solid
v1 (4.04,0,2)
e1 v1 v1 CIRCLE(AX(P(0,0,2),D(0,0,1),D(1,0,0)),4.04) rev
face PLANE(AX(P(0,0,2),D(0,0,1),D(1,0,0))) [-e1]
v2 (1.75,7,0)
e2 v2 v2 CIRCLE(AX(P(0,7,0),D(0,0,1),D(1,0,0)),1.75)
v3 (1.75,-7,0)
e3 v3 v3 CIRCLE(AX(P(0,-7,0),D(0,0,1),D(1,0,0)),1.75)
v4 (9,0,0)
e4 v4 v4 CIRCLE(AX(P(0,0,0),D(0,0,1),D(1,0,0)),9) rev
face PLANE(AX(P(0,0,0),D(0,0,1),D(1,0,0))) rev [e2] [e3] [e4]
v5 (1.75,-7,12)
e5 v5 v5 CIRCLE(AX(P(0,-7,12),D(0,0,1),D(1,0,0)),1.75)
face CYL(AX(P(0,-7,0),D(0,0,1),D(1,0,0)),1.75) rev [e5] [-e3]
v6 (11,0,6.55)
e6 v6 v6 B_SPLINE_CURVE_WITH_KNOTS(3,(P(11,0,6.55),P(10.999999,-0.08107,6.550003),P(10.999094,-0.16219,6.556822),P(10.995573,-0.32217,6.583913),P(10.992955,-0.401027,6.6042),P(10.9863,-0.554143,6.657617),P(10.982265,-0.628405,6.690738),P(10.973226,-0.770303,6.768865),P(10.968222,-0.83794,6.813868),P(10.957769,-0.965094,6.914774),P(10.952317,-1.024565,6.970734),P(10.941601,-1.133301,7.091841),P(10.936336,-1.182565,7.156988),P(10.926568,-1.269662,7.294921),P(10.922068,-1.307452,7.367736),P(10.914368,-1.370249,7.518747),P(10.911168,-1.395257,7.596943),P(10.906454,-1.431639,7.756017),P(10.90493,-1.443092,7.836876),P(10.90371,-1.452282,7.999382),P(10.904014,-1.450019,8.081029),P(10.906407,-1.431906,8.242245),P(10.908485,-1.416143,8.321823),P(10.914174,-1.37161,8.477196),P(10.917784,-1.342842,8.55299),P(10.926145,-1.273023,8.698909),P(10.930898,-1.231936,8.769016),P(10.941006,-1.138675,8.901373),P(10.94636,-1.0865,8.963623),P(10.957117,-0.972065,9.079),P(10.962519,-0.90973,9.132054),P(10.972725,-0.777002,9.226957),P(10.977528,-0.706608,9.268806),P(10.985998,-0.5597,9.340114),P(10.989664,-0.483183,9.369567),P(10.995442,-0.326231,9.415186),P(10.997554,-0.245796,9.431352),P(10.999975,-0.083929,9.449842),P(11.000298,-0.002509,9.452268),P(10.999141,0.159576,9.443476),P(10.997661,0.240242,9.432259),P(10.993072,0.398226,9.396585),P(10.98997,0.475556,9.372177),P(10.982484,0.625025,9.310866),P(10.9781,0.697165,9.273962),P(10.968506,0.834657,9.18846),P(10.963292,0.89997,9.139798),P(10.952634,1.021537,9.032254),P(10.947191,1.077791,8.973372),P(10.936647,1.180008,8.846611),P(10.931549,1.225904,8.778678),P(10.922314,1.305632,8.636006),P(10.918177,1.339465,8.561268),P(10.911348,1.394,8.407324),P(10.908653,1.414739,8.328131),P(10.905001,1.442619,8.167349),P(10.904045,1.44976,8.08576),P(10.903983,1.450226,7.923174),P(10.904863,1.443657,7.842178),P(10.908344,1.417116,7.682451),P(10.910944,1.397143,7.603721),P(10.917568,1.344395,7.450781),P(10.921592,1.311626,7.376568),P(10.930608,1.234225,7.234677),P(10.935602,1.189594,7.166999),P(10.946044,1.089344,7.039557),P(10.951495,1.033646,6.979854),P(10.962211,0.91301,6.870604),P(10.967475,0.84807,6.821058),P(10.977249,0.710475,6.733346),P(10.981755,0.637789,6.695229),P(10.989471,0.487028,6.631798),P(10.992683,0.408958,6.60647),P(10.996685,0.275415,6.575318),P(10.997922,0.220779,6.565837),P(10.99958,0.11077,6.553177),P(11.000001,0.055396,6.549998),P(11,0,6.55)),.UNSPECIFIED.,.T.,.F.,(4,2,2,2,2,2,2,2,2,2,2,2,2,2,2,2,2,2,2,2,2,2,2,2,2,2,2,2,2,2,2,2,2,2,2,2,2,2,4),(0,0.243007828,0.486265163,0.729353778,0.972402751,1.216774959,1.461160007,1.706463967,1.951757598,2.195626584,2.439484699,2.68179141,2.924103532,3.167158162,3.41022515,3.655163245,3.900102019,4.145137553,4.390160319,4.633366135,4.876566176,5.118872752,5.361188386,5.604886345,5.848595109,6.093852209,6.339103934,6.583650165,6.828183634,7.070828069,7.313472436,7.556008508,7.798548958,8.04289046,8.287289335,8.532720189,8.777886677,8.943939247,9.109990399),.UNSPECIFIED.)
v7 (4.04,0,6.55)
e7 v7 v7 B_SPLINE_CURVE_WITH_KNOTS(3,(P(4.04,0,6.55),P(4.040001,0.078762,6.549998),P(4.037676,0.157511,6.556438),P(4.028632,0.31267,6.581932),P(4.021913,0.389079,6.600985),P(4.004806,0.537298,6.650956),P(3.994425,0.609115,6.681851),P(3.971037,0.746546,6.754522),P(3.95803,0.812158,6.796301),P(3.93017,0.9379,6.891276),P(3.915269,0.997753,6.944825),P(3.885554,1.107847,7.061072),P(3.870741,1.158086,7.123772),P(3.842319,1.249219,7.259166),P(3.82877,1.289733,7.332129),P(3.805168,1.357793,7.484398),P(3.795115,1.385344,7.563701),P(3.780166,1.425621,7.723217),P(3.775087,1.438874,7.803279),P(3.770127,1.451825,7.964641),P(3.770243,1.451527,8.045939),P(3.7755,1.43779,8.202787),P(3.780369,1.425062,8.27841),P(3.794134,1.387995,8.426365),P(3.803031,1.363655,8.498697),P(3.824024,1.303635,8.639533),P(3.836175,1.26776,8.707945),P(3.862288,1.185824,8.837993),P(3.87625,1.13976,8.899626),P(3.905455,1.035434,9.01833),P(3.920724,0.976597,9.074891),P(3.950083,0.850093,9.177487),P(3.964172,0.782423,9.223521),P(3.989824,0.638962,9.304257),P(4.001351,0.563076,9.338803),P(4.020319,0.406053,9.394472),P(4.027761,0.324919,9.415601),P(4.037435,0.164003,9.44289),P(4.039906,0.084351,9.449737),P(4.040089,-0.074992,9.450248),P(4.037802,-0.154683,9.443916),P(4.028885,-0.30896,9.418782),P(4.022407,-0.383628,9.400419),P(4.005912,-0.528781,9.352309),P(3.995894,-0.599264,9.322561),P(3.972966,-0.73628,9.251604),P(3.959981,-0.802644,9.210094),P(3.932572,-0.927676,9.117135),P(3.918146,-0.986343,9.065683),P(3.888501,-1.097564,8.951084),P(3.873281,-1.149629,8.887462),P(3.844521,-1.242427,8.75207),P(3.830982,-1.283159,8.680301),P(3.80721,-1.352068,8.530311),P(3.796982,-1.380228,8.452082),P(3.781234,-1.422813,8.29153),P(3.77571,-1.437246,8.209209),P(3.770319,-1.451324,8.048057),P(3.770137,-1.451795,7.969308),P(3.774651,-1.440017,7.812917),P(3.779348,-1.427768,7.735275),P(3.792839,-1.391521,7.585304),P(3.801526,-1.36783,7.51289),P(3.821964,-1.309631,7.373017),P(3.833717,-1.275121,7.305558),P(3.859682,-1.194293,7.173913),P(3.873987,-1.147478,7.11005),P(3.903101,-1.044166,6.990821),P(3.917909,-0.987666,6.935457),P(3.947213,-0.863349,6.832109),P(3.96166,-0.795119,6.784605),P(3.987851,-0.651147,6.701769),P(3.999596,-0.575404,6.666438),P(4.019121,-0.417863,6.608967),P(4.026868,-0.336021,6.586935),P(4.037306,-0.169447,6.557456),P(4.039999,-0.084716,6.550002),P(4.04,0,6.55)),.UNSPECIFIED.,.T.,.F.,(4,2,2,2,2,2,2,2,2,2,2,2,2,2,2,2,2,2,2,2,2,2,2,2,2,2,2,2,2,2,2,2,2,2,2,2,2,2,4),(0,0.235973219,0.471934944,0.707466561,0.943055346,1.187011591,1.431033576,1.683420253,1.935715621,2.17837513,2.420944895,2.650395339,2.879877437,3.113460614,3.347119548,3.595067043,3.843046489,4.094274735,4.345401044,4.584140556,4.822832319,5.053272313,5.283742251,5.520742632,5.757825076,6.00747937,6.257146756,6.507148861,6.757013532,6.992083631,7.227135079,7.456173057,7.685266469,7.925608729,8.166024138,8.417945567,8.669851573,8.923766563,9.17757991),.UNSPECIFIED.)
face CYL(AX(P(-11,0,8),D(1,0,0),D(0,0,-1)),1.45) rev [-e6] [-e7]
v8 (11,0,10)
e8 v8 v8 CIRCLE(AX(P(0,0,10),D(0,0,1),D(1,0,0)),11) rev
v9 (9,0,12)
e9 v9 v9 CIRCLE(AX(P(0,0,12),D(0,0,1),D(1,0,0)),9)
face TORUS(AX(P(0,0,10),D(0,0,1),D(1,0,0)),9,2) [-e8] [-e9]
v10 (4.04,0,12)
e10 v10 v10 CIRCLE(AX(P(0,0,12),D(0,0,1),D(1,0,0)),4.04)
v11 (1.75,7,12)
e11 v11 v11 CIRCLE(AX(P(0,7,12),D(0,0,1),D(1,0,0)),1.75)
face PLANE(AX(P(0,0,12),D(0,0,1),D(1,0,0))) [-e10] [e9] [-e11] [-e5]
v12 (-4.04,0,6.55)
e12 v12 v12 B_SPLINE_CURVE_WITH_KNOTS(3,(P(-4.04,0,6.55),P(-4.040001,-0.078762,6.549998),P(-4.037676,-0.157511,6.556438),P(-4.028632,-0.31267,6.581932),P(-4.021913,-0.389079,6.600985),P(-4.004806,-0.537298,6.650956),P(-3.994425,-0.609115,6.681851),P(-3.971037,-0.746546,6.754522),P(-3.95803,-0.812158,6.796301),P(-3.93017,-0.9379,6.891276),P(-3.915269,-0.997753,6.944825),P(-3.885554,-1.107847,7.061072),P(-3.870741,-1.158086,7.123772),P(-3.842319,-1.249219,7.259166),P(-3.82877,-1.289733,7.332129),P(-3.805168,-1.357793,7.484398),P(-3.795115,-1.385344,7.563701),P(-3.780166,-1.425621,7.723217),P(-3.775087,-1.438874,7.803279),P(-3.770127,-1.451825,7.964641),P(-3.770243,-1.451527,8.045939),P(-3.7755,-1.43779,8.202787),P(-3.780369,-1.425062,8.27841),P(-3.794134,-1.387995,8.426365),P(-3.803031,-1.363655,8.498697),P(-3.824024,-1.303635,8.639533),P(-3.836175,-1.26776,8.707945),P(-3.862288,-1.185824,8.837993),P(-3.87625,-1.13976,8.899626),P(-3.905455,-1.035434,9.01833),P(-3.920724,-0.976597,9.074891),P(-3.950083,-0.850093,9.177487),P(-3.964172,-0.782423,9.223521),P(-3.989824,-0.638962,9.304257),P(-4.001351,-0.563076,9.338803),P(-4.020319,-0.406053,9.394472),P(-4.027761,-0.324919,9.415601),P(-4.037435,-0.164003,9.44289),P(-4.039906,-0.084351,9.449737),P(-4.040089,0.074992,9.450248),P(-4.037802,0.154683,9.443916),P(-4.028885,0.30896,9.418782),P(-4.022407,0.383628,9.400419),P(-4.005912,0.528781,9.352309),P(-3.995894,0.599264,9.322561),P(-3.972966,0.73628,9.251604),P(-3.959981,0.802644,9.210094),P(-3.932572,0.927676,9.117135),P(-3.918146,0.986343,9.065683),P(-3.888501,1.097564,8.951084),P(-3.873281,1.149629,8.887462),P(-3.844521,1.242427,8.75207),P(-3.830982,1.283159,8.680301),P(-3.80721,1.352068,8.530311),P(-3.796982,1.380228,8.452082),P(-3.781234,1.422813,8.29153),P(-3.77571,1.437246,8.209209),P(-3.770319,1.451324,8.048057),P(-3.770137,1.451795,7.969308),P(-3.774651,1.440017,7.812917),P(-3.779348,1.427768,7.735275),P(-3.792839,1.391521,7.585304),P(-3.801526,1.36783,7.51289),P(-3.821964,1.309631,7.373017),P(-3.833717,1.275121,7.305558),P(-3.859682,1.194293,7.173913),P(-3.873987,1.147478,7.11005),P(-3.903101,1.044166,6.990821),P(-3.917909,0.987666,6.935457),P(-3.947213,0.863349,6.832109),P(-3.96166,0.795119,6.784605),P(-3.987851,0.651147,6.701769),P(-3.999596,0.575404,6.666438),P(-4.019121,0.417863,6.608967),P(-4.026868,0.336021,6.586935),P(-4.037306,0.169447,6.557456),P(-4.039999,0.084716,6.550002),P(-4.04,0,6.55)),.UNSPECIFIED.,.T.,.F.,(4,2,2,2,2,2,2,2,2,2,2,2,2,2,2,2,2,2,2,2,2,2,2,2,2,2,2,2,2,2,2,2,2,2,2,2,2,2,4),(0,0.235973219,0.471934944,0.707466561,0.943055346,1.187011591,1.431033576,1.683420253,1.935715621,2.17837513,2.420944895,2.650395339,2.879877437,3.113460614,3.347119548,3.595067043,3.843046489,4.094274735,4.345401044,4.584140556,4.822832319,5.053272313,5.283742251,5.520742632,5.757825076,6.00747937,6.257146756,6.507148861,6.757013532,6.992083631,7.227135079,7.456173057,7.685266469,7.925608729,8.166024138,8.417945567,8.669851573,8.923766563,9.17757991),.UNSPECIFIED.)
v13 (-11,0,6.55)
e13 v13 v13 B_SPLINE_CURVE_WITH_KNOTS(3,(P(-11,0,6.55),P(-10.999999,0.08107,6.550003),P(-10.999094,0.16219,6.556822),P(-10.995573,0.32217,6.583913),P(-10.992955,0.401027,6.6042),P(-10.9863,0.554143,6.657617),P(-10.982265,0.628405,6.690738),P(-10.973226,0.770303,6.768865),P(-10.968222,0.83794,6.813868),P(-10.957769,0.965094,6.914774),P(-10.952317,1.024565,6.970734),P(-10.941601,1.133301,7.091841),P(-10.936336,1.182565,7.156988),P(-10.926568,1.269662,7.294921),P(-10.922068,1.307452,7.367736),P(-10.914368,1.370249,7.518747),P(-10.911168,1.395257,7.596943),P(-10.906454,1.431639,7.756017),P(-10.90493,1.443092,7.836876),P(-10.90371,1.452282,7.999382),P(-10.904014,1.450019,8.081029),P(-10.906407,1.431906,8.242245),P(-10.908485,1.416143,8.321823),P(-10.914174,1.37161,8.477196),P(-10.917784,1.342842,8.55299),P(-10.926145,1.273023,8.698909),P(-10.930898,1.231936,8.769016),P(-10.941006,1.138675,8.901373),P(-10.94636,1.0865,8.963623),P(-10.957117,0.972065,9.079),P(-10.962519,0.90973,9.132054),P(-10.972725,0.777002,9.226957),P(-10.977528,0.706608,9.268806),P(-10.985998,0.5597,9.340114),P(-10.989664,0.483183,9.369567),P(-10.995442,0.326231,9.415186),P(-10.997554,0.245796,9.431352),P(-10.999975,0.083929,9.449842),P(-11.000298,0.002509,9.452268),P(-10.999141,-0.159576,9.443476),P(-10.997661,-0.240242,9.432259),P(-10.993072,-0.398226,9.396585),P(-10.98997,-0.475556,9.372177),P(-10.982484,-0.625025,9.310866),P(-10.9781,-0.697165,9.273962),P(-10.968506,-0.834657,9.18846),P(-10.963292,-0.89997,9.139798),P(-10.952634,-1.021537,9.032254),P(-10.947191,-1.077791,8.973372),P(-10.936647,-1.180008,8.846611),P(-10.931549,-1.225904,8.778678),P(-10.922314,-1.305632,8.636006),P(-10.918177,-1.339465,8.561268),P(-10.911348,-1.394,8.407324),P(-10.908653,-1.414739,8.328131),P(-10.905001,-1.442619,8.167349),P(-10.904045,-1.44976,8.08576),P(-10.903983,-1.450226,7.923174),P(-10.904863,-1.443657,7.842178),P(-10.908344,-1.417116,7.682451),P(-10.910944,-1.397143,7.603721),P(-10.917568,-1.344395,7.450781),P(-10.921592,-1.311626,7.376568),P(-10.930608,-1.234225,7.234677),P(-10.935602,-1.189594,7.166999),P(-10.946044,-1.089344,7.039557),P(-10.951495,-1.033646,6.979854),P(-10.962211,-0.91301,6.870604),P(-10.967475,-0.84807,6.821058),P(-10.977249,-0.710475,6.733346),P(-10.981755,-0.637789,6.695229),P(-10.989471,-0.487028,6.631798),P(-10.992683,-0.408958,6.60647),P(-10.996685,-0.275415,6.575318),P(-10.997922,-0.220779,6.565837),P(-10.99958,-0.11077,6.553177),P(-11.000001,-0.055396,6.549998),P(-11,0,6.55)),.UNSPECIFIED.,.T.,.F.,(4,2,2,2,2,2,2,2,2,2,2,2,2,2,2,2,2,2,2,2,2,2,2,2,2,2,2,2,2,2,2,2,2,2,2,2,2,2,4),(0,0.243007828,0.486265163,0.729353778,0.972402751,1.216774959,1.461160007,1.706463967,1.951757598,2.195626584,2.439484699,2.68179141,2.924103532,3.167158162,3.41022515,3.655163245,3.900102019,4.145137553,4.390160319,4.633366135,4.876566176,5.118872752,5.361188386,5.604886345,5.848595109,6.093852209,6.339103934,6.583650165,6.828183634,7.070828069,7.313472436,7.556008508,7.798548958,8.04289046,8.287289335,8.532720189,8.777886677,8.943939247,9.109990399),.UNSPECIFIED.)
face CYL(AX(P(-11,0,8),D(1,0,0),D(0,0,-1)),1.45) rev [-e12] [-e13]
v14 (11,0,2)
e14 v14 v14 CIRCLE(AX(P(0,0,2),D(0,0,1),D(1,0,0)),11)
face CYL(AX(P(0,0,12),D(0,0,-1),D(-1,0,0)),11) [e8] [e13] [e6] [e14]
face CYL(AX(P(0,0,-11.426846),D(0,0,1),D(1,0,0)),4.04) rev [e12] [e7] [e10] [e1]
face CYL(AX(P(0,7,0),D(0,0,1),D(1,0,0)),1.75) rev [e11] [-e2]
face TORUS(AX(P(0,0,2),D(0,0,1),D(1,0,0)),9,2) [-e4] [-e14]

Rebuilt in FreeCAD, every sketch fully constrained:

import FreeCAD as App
import Part
import Sketcher
Q = App.Units.Quantity


def edges_at(feature, points):
    """Names of the edges that pass closest to the given points."""
    edges = feature.Shape.Edges
    near = lambda p: min(range(len(edges)), key=lambda i: edges[i].distToShape(Part.Vertex(*p))[0])
    return sorted({f"Edge{near(p) + 1}" for p in points})

doc = App.newDocument("Part")
body = doc.addObject("PartDesign::Body", "Body")

# Sketch on XY plane
sketch1 = body.newObject("Sketcher::SketchObject", "Sketch")
sketch1.AttachmentSupport = (doc.getObject("XY_Plane"), [""])
sketch1.MapMode = "FlatFace"
sketch1.addGeometry(Part.Circle(App.Vector(0, 0, 0), App.Vector(0, 0, 1), 11), False)
sketch1.addConstraint(Sketcher.Constraint("Coincident", 0, 3, -1, 1))
sketch1.addConstraint(Sketcher.Constraint("Diameter", 0, Q("22 mm")))
pad1 = body.newObject("PartDesign::Pad", "Pad")
pad1.Profile = sketch1
pad1.Length = 12

# Sketch on XY plane
sketch2 = body.newObject("Sketcher::SketchObject", "Sketch001")
sketch2.AttachmentSupport = (doc.getObject("XY_Plane"), [""])
sketch2.MapMode = "FlatFace"
sketch2.AttachmentOffset = App.Placement(App.Vector(0, 0, 12), App.Rotation())
sketch2.addGeometry(Part.Circle(App.Vector(0, 7, 0), App.Vector(0, 0, 1), 1.8), False)
sketch2.addGeometry(Part.Circle(App.Vector(0, -7, 0), App.Vector(0, 0, 1), 1.8), False)
sketch2.addConstraint(Sketcher.Constraint("Equal", 0, 1))
sketch2.addConstraint(Sketcher.Constraint("Symmetric", 0, 3, 1, 3, -1, 1))
sketch2.addConstraint(Sketcher.Constraint("PointOnObject", 0, 3, -2))
sketch2.addConstraint(Sketcher.Constraint("Diameter", 0, Q("3.5 mm")))
sketch2.addConstraint(Sketcher.Constraint("DistanceY", -1, 1, 0, 3, Q("7 mm")))
pocket1 = body.newObject("PartDesign::Pocket", "Pocket")
pocket1.Profile = sketch2
pocket1.Type = "ThroughAll"

# Sketch on XY plane
sketch3 = body.newObject("Sketcher::SketchObject", "Sketch002")
sketch3.AttachmentSupport = (doc.getObject("XY_Plane"), [""])
sketch3.MapMode = "FlatFace"
sketch3.AttachmentOffset = App.Placement(App.Vector(0, 0, 12), App.Rotation())
sketch3.addGeometry(Part.Circle(App.Vector(0, 0, 0), App.Vector(0, 0, 1), 4), False)
sketch3.addConstraint(Sketcher.Constraint("Coincident", 0, 3, -1, 1))
sketch3.addConstraint(Sketcher.Constraint("Diameter", 0, Q("8.08 mm")))
pocket2 = body.newObject("PartDesign::Pocket", "Pocket001")
pocket2.Profile = sketch3
pocket2.Length = 10

# Sketch on YZ plane
sketch4 = body.newObject("Sketcher::SketchObject", "Sketch003")
sketch4.AttachmentSupport = (doc.getObject("YZ_Plane"), [""])
sketch4.MapMode = "FlatFace"
sketch4.addGeometry(Part.Circle(App.Vector(0, 8, 0), App.Vector(0, 0, 1), 1.4), False)
sketch4.addConstraint(Sketcher.Constraint("PointOnObject", 0, 3, -2))
sketch4.addConstraint(Sketcher.Constraint("Diameter", 0, Q("2.9 mm")))
sketch4.addConstraint(Sketcher.Constraint("DistanceY", -1, 1, 0, 3, Q("8 mm")))
pocket3 = body.newObject("PartDesign::Pocket", "Pocket002")
pocket3.Profile = sketch4
pocket3.Type = "ThroughAll"
pocket3.Midplane = True
doc.recompute()

fillet = body.newObject("PartDesign::Fillet", "Fillet")
fillet.Base = (pocket3, edges_at(pocket3, [(-11, 0, 0), (-11, 0, 12)]))
fillet.Radius = 2

doc.recompute()
